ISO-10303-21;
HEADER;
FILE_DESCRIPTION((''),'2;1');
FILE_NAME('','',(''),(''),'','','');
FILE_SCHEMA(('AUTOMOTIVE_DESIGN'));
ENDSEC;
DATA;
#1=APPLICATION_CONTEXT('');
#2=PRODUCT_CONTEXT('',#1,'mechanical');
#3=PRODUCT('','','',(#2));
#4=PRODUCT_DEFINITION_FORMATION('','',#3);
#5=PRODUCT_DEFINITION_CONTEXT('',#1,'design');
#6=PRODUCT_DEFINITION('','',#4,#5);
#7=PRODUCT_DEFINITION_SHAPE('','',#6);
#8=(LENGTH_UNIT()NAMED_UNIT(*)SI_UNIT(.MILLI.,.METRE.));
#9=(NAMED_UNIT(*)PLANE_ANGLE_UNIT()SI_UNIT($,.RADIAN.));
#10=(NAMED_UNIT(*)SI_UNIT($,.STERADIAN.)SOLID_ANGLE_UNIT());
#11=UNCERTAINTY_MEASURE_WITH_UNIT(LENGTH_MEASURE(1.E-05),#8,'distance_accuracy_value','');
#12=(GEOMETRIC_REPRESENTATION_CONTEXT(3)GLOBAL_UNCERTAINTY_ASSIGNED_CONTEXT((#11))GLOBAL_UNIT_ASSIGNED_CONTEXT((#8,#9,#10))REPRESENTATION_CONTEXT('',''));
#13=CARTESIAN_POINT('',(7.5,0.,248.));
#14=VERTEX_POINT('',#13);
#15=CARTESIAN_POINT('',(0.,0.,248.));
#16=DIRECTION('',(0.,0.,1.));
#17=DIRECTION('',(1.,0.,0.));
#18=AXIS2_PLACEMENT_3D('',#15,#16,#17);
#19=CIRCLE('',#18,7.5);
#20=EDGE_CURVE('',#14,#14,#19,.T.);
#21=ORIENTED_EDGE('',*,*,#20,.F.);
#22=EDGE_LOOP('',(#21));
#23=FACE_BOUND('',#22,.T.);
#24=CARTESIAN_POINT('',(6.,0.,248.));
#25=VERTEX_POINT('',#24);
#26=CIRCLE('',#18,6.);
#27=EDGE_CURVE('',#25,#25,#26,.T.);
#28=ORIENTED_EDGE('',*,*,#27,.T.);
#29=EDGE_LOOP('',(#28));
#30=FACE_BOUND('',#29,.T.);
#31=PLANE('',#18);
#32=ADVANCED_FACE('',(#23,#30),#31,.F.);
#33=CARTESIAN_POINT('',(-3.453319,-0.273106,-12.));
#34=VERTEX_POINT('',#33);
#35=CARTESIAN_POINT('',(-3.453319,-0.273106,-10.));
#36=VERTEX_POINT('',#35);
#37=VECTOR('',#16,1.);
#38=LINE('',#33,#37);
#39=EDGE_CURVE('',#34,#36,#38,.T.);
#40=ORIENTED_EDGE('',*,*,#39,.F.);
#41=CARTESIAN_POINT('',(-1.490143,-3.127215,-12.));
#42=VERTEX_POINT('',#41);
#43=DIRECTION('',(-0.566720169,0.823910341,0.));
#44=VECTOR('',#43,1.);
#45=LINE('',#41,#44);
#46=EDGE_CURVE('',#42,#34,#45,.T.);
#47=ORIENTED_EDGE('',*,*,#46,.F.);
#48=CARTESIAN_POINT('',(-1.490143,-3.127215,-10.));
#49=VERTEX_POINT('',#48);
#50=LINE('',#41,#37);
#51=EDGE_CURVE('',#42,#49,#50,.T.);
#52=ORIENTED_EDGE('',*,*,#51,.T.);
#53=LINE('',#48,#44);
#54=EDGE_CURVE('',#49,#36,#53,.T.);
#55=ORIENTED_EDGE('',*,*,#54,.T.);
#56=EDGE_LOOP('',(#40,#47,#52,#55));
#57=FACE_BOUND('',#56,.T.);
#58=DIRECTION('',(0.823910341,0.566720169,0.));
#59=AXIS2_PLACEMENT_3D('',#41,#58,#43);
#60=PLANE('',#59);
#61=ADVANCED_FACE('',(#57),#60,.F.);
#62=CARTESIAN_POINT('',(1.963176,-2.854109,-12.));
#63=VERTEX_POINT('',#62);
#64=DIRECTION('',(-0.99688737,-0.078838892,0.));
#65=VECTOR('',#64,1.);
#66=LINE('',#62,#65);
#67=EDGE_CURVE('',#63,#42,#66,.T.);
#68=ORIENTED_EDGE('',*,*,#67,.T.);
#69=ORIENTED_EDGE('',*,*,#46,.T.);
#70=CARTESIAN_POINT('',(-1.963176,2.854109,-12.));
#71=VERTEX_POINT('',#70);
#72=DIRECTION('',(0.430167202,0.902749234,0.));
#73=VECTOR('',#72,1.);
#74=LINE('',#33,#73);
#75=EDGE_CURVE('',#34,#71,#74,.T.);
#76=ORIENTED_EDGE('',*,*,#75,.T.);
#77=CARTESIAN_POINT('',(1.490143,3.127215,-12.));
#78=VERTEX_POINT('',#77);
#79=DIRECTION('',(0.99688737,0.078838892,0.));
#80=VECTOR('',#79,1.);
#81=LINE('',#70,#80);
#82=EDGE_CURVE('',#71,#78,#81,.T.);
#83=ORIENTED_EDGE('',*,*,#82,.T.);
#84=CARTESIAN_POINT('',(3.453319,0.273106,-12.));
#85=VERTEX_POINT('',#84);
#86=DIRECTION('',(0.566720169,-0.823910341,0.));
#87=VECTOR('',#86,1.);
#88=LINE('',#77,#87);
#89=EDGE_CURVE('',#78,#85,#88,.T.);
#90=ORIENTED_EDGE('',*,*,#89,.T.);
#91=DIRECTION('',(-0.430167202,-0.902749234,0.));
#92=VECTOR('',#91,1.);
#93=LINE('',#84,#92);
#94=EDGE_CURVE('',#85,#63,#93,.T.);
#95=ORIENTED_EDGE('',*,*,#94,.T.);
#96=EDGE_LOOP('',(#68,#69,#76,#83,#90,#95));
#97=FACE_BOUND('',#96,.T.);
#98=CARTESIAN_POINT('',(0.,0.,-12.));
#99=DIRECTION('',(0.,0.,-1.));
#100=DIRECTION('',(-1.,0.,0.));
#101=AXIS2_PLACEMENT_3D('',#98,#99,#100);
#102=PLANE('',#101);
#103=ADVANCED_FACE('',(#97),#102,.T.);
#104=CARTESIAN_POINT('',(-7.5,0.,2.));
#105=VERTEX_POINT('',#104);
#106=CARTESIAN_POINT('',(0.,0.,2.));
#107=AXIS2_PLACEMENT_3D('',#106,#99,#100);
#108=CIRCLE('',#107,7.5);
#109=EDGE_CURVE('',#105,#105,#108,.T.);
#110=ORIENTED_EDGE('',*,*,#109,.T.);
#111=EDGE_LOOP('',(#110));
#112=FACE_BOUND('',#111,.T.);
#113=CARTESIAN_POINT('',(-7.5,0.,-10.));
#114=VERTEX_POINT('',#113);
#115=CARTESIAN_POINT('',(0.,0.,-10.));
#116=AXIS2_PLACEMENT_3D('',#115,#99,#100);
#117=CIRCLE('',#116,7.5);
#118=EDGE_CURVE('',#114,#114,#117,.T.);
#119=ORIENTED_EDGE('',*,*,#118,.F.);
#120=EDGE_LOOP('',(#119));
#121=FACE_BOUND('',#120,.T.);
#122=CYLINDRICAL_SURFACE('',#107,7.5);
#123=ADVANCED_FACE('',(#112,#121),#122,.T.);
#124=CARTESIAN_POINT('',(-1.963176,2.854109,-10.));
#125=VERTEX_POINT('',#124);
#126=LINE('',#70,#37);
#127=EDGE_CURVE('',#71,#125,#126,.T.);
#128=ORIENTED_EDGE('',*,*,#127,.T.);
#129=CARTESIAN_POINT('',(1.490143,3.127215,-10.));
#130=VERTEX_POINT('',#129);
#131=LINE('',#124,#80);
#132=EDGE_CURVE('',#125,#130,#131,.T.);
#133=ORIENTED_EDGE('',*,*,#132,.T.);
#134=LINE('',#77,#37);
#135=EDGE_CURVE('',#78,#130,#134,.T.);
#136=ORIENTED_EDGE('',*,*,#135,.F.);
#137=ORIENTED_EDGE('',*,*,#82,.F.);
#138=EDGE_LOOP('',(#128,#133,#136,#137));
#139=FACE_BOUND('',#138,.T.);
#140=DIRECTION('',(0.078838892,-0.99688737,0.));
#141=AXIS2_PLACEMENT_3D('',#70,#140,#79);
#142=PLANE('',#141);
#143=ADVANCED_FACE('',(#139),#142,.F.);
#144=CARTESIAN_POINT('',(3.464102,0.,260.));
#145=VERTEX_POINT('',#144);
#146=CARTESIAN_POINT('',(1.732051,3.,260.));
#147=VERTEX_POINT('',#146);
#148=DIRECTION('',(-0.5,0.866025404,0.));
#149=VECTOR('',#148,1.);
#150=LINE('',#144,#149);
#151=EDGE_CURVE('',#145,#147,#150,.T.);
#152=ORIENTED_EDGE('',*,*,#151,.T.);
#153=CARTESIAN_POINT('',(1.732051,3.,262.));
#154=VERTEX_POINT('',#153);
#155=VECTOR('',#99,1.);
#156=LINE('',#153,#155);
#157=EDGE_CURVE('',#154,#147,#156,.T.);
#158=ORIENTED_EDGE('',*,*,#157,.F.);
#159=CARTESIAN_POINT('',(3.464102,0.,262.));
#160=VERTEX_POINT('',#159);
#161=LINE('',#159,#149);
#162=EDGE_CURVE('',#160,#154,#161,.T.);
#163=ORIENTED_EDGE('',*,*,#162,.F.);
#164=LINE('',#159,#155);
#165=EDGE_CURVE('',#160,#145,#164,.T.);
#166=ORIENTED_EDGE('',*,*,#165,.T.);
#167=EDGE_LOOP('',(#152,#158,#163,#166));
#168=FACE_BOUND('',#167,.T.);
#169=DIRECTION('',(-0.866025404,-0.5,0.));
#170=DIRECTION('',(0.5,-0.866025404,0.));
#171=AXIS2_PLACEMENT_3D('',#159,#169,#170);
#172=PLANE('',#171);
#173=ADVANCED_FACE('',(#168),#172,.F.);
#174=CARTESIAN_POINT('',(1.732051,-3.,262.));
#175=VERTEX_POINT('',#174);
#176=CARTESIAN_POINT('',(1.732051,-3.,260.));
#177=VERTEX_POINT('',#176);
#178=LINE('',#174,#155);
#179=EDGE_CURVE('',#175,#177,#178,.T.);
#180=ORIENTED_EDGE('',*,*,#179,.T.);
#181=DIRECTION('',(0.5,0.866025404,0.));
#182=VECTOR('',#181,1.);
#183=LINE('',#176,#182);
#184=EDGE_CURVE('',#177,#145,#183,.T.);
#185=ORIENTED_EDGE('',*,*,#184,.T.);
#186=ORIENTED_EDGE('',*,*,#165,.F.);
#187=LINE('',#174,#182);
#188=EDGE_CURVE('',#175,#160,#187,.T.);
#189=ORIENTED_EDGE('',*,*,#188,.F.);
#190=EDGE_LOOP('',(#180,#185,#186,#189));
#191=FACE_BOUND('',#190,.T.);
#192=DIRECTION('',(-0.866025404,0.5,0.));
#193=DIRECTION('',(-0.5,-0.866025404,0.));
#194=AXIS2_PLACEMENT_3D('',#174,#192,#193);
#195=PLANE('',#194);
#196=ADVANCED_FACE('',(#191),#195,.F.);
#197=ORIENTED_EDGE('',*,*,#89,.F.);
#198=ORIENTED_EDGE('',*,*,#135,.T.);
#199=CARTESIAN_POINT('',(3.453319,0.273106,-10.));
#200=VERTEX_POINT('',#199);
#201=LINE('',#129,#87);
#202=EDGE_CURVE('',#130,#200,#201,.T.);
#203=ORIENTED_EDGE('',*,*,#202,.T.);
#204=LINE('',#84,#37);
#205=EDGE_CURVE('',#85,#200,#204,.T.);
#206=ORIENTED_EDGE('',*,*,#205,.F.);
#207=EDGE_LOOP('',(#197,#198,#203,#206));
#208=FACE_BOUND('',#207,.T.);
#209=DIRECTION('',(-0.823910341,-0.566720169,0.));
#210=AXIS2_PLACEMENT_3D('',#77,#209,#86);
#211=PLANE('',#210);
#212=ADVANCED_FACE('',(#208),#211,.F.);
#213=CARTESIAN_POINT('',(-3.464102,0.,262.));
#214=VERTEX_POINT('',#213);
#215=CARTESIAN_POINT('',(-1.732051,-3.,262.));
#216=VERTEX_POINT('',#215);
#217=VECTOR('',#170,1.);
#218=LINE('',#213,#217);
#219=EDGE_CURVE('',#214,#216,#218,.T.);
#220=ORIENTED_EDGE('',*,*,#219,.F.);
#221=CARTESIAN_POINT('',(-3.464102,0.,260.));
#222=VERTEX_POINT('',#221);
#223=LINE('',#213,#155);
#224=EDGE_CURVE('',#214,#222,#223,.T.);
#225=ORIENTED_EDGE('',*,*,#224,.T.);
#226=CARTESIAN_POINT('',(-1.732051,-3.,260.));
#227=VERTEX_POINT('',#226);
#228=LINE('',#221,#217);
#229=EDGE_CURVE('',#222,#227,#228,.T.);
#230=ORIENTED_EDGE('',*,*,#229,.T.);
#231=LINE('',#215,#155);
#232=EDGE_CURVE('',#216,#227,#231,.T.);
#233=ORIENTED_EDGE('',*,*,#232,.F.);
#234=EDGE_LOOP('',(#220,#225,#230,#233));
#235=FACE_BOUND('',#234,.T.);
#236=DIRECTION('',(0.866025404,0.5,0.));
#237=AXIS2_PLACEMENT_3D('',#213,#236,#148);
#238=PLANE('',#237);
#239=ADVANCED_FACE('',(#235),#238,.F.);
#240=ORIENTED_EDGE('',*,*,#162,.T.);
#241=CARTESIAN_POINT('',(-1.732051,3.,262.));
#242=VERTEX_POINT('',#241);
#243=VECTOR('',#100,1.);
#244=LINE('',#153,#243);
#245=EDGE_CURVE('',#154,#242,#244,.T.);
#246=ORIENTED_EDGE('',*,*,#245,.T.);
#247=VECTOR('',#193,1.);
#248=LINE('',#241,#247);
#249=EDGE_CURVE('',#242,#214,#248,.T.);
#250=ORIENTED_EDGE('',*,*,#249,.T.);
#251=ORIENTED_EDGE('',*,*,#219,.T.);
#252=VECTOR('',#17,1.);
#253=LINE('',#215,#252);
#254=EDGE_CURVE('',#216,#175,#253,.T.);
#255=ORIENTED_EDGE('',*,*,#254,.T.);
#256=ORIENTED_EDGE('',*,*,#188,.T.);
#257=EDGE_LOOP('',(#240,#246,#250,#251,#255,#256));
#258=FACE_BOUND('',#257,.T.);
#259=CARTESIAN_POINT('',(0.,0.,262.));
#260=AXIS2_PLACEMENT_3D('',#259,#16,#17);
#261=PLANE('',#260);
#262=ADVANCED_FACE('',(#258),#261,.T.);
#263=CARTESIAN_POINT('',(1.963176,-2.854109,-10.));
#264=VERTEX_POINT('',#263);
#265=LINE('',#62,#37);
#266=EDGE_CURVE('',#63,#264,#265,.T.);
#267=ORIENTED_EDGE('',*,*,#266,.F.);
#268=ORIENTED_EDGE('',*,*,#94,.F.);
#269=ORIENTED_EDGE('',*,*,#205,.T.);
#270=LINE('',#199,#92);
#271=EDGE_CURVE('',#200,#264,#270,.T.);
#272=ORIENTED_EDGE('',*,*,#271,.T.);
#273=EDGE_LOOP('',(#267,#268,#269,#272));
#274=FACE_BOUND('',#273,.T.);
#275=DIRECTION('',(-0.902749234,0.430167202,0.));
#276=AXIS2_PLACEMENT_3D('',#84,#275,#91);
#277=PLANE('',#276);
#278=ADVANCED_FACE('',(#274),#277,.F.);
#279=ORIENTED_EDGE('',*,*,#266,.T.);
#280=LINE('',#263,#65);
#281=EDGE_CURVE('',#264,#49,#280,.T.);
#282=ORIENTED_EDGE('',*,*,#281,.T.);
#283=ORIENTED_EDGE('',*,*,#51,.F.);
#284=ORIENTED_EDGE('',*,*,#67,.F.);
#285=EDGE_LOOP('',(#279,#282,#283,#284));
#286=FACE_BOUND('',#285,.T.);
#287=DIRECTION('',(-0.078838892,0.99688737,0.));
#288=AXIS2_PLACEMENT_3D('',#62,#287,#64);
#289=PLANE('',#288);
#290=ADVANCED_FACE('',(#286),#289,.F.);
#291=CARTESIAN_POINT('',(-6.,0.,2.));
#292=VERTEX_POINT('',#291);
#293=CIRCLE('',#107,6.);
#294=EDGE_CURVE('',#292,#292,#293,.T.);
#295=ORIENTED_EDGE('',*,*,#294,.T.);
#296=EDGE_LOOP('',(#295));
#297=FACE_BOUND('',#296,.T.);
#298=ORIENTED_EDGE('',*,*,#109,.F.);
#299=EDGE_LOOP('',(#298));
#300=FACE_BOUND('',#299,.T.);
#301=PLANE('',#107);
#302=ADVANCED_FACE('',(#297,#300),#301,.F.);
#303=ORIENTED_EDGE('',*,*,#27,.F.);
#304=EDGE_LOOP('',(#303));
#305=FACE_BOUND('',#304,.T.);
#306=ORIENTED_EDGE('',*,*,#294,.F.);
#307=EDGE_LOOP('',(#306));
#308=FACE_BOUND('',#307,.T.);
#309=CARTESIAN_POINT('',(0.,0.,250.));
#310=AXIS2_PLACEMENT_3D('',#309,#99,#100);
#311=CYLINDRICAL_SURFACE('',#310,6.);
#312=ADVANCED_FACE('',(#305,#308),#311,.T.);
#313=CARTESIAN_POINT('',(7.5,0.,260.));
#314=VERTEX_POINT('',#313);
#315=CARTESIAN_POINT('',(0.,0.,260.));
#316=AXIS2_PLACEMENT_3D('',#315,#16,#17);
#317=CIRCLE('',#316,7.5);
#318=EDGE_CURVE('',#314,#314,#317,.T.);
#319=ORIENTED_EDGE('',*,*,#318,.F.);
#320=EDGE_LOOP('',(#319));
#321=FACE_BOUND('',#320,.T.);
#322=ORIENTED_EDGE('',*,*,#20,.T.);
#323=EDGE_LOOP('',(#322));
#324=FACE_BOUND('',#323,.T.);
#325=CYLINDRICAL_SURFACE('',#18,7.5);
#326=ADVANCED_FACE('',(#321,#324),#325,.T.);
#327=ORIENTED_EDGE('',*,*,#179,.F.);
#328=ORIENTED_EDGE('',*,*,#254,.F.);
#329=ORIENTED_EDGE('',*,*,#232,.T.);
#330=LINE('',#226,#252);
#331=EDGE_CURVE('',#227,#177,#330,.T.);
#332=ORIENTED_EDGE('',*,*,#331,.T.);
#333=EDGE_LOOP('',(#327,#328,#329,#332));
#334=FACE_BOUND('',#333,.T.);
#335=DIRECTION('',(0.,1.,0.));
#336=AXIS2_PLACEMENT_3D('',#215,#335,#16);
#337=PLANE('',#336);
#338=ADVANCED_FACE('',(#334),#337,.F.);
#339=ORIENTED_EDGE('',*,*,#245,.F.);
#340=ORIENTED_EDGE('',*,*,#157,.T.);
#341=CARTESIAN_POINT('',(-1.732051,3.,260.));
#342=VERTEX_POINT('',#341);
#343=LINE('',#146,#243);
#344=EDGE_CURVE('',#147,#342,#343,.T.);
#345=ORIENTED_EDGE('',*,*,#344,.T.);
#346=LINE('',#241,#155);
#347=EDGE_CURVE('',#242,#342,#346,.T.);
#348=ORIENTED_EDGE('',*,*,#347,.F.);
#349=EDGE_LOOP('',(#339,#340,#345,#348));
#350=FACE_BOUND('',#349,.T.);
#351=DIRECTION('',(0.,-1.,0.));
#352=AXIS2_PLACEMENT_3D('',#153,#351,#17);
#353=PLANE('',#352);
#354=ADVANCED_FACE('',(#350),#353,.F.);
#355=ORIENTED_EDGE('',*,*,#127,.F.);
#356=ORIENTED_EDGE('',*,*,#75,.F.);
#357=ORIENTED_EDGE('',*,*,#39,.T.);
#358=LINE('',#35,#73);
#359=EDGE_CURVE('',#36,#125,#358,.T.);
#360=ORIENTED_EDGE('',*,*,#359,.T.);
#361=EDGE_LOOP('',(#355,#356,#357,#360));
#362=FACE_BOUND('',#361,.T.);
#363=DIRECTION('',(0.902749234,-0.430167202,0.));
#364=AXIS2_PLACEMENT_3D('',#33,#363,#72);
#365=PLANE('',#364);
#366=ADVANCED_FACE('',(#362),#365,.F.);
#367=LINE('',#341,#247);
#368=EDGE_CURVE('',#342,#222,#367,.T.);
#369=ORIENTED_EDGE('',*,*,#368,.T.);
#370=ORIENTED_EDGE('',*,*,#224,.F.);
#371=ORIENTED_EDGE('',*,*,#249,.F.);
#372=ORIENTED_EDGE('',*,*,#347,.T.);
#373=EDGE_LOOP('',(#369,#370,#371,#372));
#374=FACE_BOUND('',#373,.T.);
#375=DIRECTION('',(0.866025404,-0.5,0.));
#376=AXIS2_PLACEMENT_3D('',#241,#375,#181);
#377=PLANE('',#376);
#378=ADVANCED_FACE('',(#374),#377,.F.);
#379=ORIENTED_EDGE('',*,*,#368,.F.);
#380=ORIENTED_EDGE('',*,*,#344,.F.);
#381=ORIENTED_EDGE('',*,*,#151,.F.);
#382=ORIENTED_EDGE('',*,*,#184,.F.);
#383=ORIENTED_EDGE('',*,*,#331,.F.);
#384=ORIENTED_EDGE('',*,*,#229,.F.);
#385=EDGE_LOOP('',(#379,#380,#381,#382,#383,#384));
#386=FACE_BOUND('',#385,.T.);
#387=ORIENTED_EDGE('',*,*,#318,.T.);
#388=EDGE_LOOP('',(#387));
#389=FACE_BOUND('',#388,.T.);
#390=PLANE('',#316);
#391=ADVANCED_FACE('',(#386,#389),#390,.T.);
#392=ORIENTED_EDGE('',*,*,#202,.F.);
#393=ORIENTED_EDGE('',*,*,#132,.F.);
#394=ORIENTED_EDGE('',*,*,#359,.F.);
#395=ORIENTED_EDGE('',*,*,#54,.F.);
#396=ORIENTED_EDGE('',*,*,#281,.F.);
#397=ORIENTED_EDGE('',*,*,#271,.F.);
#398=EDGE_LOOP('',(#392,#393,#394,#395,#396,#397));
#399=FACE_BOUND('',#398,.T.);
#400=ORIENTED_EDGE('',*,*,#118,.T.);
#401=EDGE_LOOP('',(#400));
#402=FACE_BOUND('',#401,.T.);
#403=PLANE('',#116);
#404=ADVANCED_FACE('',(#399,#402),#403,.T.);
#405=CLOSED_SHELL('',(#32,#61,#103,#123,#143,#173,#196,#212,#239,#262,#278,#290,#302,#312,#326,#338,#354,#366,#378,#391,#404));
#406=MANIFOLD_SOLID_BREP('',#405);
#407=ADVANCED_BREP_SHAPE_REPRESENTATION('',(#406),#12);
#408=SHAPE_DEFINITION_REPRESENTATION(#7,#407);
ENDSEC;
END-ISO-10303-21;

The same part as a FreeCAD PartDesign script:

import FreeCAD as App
import Part
import Sketcher

V = App.Vector
Q = App.Units.Quantity

doc = App.newDocument("Part")
body = doc.addObject("PartDesign::Body", "Body")

sketch1 = doc.addObject("Sketcher::SketchObject", "Sketch")
body.addObject(sketch1)
sketch1.AttachmentSupport = (doc.XY_Plane, [""])
sketch1.MapMode = "FlatFace"
sketch1.addGeometry(Part.Circle(V(0, 0, 0), V(0, 0, 1), 6), False)
sketch1.addConstraint(Sketcher.Constraint("Coincident", 0, 3, -1, 1))
sketch1.addConstraint(Sketcher.Constraint("Diameter", 0, Q("12 mm")))
pad1 = doc.addObject("PartDesign::Pad", "Pad")
body.addObject(pad1)
pad1.Profile = sketch1
pad1.Length = 250

sketch2 = doc.addObject("Sketcher::SketchObject", "Sketch001")
body.addObject(sketch2)
sketch2.AttachmentSupport = (doc.XY_Plane, [""])
sketch2.MapMode = "FlatFace"
sketch2.AttachmentOffset = App.Placement(V(0, 0, 250), App.Rotation())
sketch2.addGeometry(Part.Circle(V(0, 0, 0), V(0, 0, 1), 8), False)
sketch2.addConstraint(Sketcher.Constraint("Coincident", 0, 3, -1, 1))
sketch2.addConstraint(Sketcher.Constraint("Diameter", 0, Q("15 mm")))
pad2 = doc.addObject("PartDesign::Pad", "Pad001")
body.addObject(pad2)
pad2.Profile = sketch2
pad2.Type = "TwoLengths"
pad2.Length = 10
pad2.Length2 = 2

sketch3 = doc.addObject("Sketcher::SketchObject", "Sketch002")
body.addObject(sketch3)
sketch3.AttachmentSupport = (doc.XY_Plane, [""])
sketch3.MapMode = "FlatFace"
sketch3.addGeometry(Part.Circle(V(0, 0, 0), V(0, 0, 1), 8), False)
sketch3.addConstraint(Sketcher.Constraint("Coincident", 0, 3, -1, 1))
sketch3.addConstraint(Sketcher.Constraint("Diameter", 0, Q("15 mm")))
pad3 = doc.addObject("PartDesign::Pad", "Pad002")
body.addObject(pad3)
pad3.Profile = sketch3
pad3.Type = "TwoLengths"
pad3.Length = 10
pad3.Length2 = 2
pad3.Reversed = True

sketch4 = doc.addObject("Sketcher::SketchObject", "Sketch003")
body.addObject(sketch4)
sketch4.AttachmentSupport = (doc.XY_Plane, [""])
sketch4.MapMode = "FlatFace"
sketch4.AttachmentOffset = App.Placement(V(0, 0, 260), App.Rotation())
sketch4.addGeometry(Part.LineSegment(V(3.5, 0, 0), V(1.7, 3, 0)), False)
sketch4.addGeometry(Part.LineSegment(V(1.7, 3, 0), V(-1.7, 3, 0)), False)
sketch4.addGeometry(Part.LineSegment(V(-1.7, 3, 0), V(-3.5, 0, 0)), False)
sketch4.addGeometry(Part.LineSegment(V(-3.5, 0, 0), V(-1.7, -3, 0)), False)
sketch4.addGeometry(Part.LineSegment(V(-1.7, -3, 0), V(1.7, -3, 0)), False)
sketch4.addGeometry(Part.LineSegment(V(1.7, -3, 0), V(3.5, 0, 0)), False)
sketch4.addConstraint(Sketcher.Constraint("Coincident", 0, 2, 1, 1))
sketch4.addConstraint(Sketcher.Constraint("Coincident", 1, 2, 2, 1))
sketch4.addConstraint(Sketcher.Constraint("Coincident", 2, 2, 3, 1))
sketch4.addConstraint(Sketcher.Constraint("Coincident", 3, 2, 4, 1))
sketch4.addConstraint(Sketcher.Constraint("Coincident", 4, 2, 5, 1))
sketch4.addConstraint(Sketcher.Constraint("Coincident", 5, 2, 0, 1))
sketch4.addConstraint(Sketcher.Constraint("Horizontal", 1))
sketch4.addConstraint(Sketcher.Constraint("Horizontal", 4))
sketch4.addConstraint(Sketcher.Constraint("Symmetric", 0, 2, 3, 2, -1, 1))
sketch4.addConstraint(Sketcher.Constraint("Symmetric", 2, 2, 5, 2, -1, 1))
sketch4.addConstraint(Sketcher.Constraint("PointOnObject", 2, 2, -1))
sketch4.addConstraint(Sketcher.Constraint("Parallel", 2, 5))
sketch4.addConstraint(Sketcher.Constraint("Vertical", 1, 2, 3, 2))
sketch4.addConstraint(Sketcher.Constraint("Angle", 0, Q("120 deg")))
sketch4.addConstraint(Sketcher.Constraint("DistanceY", -1, 1, 0, 2, Q("3 mm")))
sketch4.addConstraint(Sketcher.Constraint("DistanceX", 1, 2, 1, 1, Q("3.464102 mm")))
pad4 = doc.addObject("PartDesign::Pad", "Pad003")
body.addObject(pad4)
pad4.Profile = sketch4
pad4.Length = 2

sketch5 = doc.addObject("Sketcher::SketchObject", "Sketch004")
body.addObject(sketch5)
sketch5.AttachmentSupport = (doc.XY_Plane, [""])
sketch5.MapMode = "FlatFace"
sketch5.AttachmentOffset = App.Placement(V(0, 0, -10), App.Rotation())
sketch5.addGeometry(Part.LineSegment(V(-2, 2.9, 0), V(1.5, 3.1, 0)), False)
sketch5.addGeometry(Part.LineSegment(V(1.5, 3.1, 0), V(3.5, 0.3, 0)), False)
sketch5.addGeometry(Part.LineSegment(V(3.5, 0.3, 0), V(2, -2.9, 0)), False)
sketch5.addGeometry(Part.LineSegment(V(2, -2.9, 0), V(-1.5, -3.1, 0)), False)
sketch5.addGeometry(Part.LineSegment(V(-1.5, -3.1, 0), V(-3.5, -0.3, 0)), False)
sketch5.addGeometry(Part.LineSegment(V(-3.5, -0.3, 0), V(-2, 2.9, 0)), False)
sketch5.addConstraint(Sketcher.Constraint("Coincident", 0, 2, 1, 1))
sketch5.addConstraint(Sketcher.Constraint("Coincident", 1, 2, 2, 1))
sketch5.addConstraint(Sketcher.Constraint("Coincident", 2, 2, 3, 1))
sketch5.addConstraint(Sketcher.Constraint("Coincident", 3, 2, 4, 1))
sketch5.addConstraint(Sketcher.Constraint("Coincident", 4, 2, 5, 1))
sketch5.addConstraint(Sketcher.Constraint("Coincident", 5, 2, 0, 1))
sketch5.addConstraint(Sketcher.Constraint("Symmetric", 0, 2, 3, 2, -1, 1))
sketch5.addConstraint(Sketcher.Constraint("Symmetric", 1, 2, 4, 2, -1, 1))
sketch5.addConstraint(Sketcher.Constraint("Symmetric", 2, 2, 5, 2, -1, 1))
sketch5.addConstraint(Sketcher.Constraint("Equal", 0, 1))
sketch5.addConstraint(Sketcher.Constraint("Equal", 1, 2))
sketch5.addConstraint(Sketcher.Constraint("Distance", 0, Q("3.464102 mm")))
sketch5.addConstraint(Sketcher.Constraint("DistanceX", -1, 1, 1, 2, Q("3.453319 mm")))
sketch5.addConstraint(Sketcher.Constraint("DistanceY", 2, 2, -1, 1, Q("2.854109 mm")))
sketch5.addConstraint(Sketcher.Constraint("DistanceY", 1, 2, 0, 2, Q("2.854109 mm")))
pad5 = doc.addObject("PartDesign::Pad", "Pad004")
body.addObject(pad5)
pad5.Profile = sketch5
pad5.Length = 2
pad5.Reversed = True

doc.recompute()
